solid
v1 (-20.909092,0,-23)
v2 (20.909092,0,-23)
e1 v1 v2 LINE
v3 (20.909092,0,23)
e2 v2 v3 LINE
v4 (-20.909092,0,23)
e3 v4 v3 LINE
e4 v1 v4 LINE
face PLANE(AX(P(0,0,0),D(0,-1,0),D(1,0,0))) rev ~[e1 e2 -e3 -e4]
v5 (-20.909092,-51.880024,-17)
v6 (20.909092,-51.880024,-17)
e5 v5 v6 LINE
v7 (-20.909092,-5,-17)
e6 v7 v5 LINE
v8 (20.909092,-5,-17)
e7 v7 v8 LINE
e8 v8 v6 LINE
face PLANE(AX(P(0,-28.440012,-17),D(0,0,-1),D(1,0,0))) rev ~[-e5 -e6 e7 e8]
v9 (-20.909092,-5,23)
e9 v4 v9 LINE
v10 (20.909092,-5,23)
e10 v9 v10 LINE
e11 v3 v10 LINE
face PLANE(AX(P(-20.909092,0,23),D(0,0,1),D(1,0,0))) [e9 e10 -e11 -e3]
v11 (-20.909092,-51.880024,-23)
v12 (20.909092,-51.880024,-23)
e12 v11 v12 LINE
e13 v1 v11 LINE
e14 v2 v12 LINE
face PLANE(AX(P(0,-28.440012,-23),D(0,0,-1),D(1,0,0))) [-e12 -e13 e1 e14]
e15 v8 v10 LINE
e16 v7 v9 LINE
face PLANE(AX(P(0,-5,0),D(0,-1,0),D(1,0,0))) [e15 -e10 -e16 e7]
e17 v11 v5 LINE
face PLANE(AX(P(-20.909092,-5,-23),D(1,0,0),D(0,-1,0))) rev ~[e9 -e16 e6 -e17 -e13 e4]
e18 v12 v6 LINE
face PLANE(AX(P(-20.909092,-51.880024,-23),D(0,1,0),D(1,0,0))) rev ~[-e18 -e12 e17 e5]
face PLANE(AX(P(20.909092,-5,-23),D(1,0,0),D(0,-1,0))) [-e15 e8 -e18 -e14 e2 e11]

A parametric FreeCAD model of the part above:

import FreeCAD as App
import Part
import Sketcher

V = App.Vector
Q = App.Units.Quantity

doc = App.newDocument("Part")
params = doc.addObject("Spreadsheet::Sheet", "Params")
for row, (alias, value) in enumerate([
    ("sketch1_height", "46 mm"),
    ("pad1_length", "5 mm"),
    ("pad2_length", "6 mm"),
], start=1):
    params.set(f"A{row}", alias)
    params.set(f"B{row}", "=" + value)
    params.setAlias(f"B{row}", alias)

body = doc.addObject("PartDesign::Body", "Body")

sketch1 = body.newObject("Sketcher::SketchObject", "Sketch")
sketch1.AttachmentSupport = (doc.getObject("XZ_Plane"), [""])
sketch1.MapMode = "FlatFace"
sketch1.addGeometry(Part.LineSegment(V(-21, 23, 0), V(-21, -23, 0)), False)
sketch1.addGeometry(Part.LineSegment(V(-21, -23, 0), V(21, -23, 0)), False)
sketch1.addGeometry(Part.LineSegment(V(21, -23, 0), V(21, 23, 0)), False)
sketch1.addGeometry(Part.LineSegment(V(21, 23, 0), V(-21, 23, 0)), False)
sketch1.addConstraint(Sketcher.Constraint("Coincident", 0, 2, 1, 1))
sketch1.addConstraint(Sketcher.Constraint("Coincident", 1, 2, 2, 1))
sketch1.addConstraint(Sketcher.Constraint("Coincident", 2, 2, 3, 1))
sketch1.addConstraint(Sketcher.Constraint("Coincident", 3, 2, 0, 1))
sketch1.addConstraint(Sketcher.Constraint("Vertical", 0))
sketch1.addConstraint(Sketcher.Constraint("Horizontal", 1))
sketch1.addConstraint(Sketcher.Constraint("Vertical", 2))
sketch1.addConstraint(Sketcher.Constraint("Horizontal", 3))
sketch1.addConstraint(Sketcher.Constraint("Symmetric", 0, 2, 2, 2, -1, 1))
sketch1.addConstraint(Sketcher.Constraint("DistanceY", 0, 2, 0, 1, Q("46 mm")))
sketch1.addConstraint(Sketcher.Constraint("DistanceX", 1, 1, 1, 2, Q("41.818184 mm")))
sketch1.setExpression("Constraints[9]", "Params.sketch1_height")
pad1 = body.newObject("PartDesign::Pad", "Pad")
pad1.Profile = sketch1
pad1.setExpression("Length", "Params.pad1_length")

sketch2 = body.newObject("Sketcher::SketchObject", "Sketch001")
sketch2.AttachmentSupport = (doc.getObject("XY_Plane"), [""])
sketch2.MapMode = "FlatFace"
sketch2.AttachmentOffset = App.Placement(V(0, 0, -23), App.Rotation())
sketch2.addGeometry(Part.LineSegment(V(-21, -52, 0), V(-21, -5, 0)), False)
sketch2.addGeometry(Part.LineSegment(V(-21, -5, 0), V(21, -5, 0)), False)
sketch2.addGeometry(Part.LineSegment(V(21, -5, 0), V(21, -52, 0)), False)
sketch2.addGeometry(Part.LineSegment(V(21, -52, 0), V(-21, -52, 0)), False)
sketch2.addConstraint(Sketcher.Constraint("Coincident", 0, 2, 1, 1))
sketch2.addConstraint(Sketcher.Constraint("Coincident", 1, 2, 2, 1))
sketch2.addConstraint(Sketcher.Constraint("Coincident", 2, 2, 3, 1))
sketch2.addConstraint(Sketcher.Constraint("Coincident", 3, 2, 0, 1))
sketch2.addConstraint(Sketcher.Constraint("Vertical", 0))
sketch2.addConstraint(Sketcher.Constraint("Horizontal", 1))
sketch2.addConstraint(Sketcher.Constraint("Vertical", 2))
sketch2.addConstraint(Sketcher.Constraint("Horizontal", 3))
sketch2.addConstraint(Sketcher.Constraint("DistanceY", 0, 2, -1, 1, Q("5 mm")))
sketch2.addConstraint(Sketcher.Constraint("DistanceX", 1, 1, 1, 2, Q("41.818184 mm")))
sketch2.addConstraint(Sketcher.Constraint("DistanceY", 0, 1, 0, 2, Q("46.880024 mm")))
sketch2.addConstraint(Sketcher.Constraint("DistanceX", 0, 2, -1, 1, Q("20.909092 mm")))
pad2 = body.newObject("PartDesign::Pad", "Pad001")
pad2.Profile = sketch2
pad2.setExpression("Length", "Params.pad2_length")

doc.recompute()
